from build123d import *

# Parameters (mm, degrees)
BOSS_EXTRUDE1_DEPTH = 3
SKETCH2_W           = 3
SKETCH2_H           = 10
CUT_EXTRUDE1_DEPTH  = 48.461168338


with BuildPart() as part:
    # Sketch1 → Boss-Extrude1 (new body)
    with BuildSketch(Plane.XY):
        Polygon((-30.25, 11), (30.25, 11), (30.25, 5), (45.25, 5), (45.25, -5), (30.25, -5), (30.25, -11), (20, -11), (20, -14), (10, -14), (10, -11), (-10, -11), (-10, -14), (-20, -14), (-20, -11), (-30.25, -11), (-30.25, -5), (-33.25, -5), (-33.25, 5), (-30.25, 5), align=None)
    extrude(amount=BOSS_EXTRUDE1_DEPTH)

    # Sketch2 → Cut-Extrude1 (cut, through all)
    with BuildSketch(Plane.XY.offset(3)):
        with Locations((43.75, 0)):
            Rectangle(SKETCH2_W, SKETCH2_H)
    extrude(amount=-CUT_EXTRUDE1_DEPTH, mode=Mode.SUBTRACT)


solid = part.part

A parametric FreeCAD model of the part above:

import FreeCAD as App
import Part
import Sketcher


def add_polygon(sketch, points):
    """Adds a closed chain of lines whose ends are joined by coincident constraints."""
    first, n = sketch.GeometryCount, len(points)
    for a, b in zip(points, points[1:] + points[:1]):
        sketch.addGeometry(Part.LineSegment(App.Vector(*a, 0), App.Vector(*b, 0)), False)
    for i in range(n):
        sketch.addConstraint(Sketcher.Constraint("Coincident", first + i, 2, first + (i + 1) % n, 1))

doc = App.newDocument("Part")
body = doc.addObject("PartDesign::Body", "Body")

# Sketch on XY plane
sketch1 = body.newObject("Sketcher::SketchObject", "Sketch")
sketch1.AttachmentSupport = (doc.getObject("XY_Plane"), [""])
sketch1.MapMode = "FlatFace"
add_polygon(sketch1, [(30.2, 11), (-30.2, 11), (-30.2, 5), (-33.2, 5), (-33.2, -5), (-30.2, -5), (-30.2, -11), (-20, -11), (-20, -14), (-10, -14), (-10, -11), (10, -11), (10, -14), (20, -14), (20, -11), (30.2, -11), (30.2, -5), (45.2, -5), (45.2, 5), (30.2, 5)])  # lines 0-19
sketch1.addConstraint([
    Sketcher.Constraint("Horizontal", 0),
    Sketcher.Constraint("Vertical", 1),
    Sketcher.Constraint("Horizontal", 2),
    Sketcher.Constraint("Vertical", 3),
    Sketcher.Constraint("Horizontal", 4),
    Sketcher.Constraint("Vertical", 5),
    Sketcher.Constraint("Horizontal", 6),
    Sketcher.Constraint("Vertical", 7),
    Sketcher.Constraint("Horizontal", 8),
    Sketcher.Constraint("Vertical", 9),
    Sketcher.Constraint("Horizontal", 10),
    Sketcher.Constraint("Vertical", 11),
    Sketcher.Constraint("Horizontal", 12),
    Sketcher.Constraint("Vertical", 13),
    Sketcher.Constraint("Horizontal", 14),
    Sketcher.Constraint("Vertical", 15),
    Sketcher.Constraint("Horizontal", 16),
    Sketcher.Constraint("Vertical", 17),
    Sketcher.Constraint("Horizontal", 18),
    Sketcher.Constraint("Vertical", 19),
    Sketcher.Constraint("Symmetric", 0, 2, 14, 2, -1, 1),
    Sketcher.Constraint("Symmetric", 4, 2, 18, 2, -1, 1),
    Sketcher.Constraint("Symmetric", 8, 2, 11, 2, -2),
    Sketcher.Constraint("Symmetric", 6, 2, 13, 2, -2),
    Sketcher.Constraint("Symmetric", 4, 2, 15, 2, -2),
    Sketcher.Constraint("Horizontal", 6, 2, 9, 2),
    Sketcher.Constraint("Horizontal", 2, 2, 17, 2),
    Sketcher.Constraint("Equal", 12, 3),
    Sketcher.Constraint("Equal", 4, 7),
    Sketcher.Constraint("DistanceX", 2, 2, 2, 1, 3.0),
    Sketcher.Constraint("DistanceX", 8, 1, 8, 2, 10.0),
    Sketcher.Constraint("DistanceX", 10, 1, 10, 2, 20.0),
    Sketcher.Constraint("DistanceX", 16, 1, 16, 2, 15.0),
    Sketcher.Constraint("DistanceY", 1, 2, 1, 1, 6.0),
    Sketcher.Constraint("DistanceX", 0, 2, 0, 1, 60.5),
])
pad1 = body.newObject("PartDesign::Pad", "Pad")
pad1.Profile = sketch1
pad1.Length = 3

# Sketch on XY plane
sketch2 = body.newObject("Sketcher::SketchObject", "Sketch001")
sketch2.AttachmentSupport = (doc.getObject("XY_Plane"), [""])
sketch2.MapMode = "FlatFace"
sketch2.AttachmentOffset = App.Placement(App.Vector(0, 0, 3), App.Rotation())
add_polygon(sketch2, [(42.2, 5), (42.2, -5), (45.2, -5), (45.2, 5)])  # lines 0-3
sketch2.addConstraint([
    Sketcher.Constraint("Vertical", 0),
    Sketcher.Constraint("Horizontal", 1),
    Sketcher.Constraint("Vertical", 2),
    Sketcher.Constraint("Horizontal", 3),
    Sketcher.Constraint("DistanceX", 1, 1, 1, 2, 3.0),
    Sketcher.Constraint("DistanceY", 0, 2, 0, 1, 10.0),
    Sketcher.Constraint("DistanceY", 0, 2, -1, 1, 5.0),
    Sketcher.Constraint("DistanceX", -1, 1, 0, 2, 42.25),
])
pocket1 = body.newObject("PartDesign::Pocket", "Pocket")
pocket1.Profile = sketch2
pocket1.Type = "ThroughAll"

doc.recompute()
